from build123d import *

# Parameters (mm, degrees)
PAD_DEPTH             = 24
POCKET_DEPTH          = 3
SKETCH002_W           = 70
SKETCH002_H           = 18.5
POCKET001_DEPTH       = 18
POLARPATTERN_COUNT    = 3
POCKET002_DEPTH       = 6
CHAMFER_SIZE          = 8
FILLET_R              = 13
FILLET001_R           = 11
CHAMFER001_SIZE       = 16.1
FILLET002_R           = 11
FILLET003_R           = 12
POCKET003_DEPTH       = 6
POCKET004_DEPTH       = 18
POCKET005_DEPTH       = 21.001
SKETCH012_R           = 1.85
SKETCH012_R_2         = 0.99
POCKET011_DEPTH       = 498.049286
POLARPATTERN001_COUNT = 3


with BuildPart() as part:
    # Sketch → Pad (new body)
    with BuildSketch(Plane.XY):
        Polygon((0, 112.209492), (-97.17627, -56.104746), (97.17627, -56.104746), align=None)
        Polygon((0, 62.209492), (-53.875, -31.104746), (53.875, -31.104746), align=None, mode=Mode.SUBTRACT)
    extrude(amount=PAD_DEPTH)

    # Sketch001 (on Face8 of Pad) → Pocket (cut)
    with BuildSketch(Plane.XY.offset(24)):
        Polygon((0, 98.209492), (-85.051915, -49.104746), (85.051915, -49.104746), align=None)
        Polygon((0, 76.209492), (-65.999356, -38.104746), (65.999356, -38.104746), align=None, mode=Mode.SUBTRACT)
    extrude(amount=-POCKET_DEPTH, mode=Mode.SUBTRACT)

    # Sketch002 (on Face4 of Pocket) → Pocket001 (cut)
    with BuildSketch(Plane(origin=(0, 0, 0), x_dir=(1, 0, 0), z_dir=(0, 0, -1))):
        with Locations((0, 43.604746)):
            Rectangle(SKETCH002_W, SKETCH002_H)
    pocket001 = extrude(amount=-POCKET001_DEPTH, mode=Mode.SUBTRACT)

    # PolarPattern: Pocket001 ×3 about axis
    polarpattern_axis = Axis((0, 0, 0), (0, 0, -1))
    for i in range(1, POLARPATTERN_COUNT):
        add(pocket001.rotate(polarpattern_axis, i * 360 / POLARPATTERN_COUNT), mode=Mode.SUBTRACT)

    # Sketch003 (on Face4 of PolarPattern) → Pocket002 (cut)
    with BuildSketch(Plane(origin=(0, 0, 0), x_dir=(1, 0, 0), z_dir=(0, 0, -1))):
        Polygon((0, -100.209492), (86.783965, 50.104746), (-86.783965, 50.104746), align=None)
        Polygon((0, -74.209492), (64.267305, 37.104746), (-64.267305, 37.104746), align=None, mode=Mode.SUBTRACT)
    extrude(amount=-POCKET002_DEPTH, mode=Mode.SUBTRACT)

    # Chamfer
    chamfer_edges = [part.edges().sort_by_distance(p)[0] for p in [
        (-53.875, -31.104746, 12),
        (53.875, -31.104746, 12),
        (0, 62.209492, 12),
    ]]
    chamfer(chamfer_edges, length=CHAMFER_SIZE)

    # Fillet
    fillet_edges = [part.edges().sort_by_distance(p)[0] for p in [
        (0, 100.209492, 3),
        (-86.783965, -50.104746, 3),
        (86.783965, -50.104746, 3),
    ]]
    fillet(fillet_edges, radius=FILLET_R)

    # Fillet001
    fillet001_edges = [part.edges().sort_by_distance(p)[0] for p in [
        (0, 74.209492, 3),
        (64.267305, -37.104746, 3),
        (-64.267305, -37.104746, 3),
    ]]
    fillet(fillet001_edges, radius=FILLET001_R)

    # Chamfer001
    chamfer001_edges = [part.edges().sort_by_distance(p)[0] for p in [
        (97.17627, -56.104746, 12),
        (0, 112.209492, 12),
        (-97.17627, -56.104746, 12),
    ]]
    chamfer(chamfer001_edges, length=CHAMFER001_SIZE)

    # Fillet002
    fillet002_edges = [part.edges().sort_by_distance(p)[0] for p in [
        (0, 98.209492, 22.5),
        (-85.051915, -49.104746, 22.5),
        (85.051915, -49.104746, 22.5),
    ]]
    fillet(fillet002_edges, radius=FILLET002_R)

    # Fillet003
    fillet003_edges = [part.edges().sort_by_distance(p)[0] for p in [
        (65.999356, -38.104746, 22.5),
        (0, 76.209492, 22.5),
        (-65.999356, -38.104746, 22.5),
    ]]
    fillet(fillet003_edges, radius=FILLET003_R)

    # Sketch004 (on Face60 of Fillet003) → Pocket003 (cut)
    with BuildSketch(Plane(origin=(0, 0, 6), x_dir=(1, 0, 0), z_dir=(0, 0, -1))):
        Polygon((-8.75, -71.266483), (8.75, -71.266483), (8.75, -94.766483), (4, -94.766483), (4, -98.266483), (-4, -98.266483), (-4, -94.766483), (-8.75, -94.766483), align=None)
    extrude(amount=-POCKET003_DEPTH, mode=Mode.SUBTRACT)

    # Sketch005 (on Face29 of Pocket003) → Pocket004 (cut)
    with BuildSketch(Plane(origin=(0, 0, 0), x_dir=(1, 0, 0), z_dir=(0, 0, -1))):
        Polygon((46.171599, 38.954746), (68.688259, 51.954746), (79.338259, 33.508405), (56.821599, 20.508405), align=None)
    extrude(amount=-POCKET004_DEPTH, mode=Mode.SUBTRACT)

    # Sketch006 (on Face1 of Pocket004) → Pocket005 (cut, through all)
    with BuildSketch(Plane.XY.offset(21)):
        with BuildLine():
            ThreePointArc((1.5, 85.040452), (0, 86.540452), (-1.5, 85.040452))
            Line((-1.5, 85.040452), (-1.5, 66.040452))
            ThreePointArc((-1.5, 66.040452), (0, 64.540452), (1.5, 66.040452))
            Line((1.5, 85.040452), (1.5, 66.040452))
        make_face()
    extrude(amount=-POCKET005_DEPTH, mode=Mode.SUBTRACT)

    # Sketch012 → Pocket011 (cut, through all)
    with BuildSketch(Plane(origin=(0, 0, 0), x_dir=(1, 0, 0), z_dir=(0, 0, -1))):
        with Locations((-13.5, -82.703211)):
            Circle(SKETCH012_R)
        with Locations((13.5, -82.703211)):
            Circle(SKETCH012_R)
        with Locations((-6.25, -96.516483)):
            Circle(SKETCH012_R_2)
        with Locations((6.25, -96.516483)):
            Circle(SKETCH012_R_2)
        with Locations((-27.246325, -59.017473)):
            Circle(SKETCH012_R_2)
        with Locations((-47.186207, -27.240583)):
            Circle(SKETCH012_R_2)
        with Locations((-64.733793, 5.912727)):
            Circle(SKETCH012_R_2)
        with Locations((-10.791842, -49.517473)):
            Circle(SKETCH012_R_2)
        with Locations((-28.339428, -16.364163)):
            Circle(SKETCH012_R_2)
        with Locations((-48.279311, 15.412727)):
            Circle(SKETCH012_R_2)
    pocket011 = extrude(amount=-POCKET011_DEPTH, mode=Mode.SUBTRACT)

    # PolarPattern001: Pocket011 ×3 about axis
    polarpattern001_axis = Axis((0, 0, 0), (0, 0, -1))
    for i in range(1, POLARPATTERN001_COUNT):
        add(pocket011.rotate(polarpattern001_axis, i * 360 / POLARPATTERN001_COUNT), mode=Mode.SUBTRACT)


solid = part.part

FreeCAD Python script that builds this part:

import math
import FreeCAD as App
import Part
import Sketcher
Q = App.Units.Quantity


def edges_at(feature, points):
    """Names of the edges that pass closest to the given points."""
    edges = feature.Shape.Edges
    near = lambda p: min(range(len(edges)), key=lambda i: edges[i].distToShape(Part.Vertex(*p))[0])
    return sorted({f"Edge{near(p) + 1}" for p in points})

doc = App.newDocument("Part")
body = doc.addObject("PartDesign::Body", "Body")

sketch1 = doc.addObject("Sketcher::SketchObject", "Sketch")
body.addObject(sketch1)
sketch1.AttachmentSupport = (doc.XY_Plane, [""])
sketch1.MapMode = "FlatFace"
sketch1.addGeometry([
    Part.LineSegment(App.Vector(0, 112, 0), App.Vector(-97, -56, 0)),
    Part.LineSegment(App.Vector(-97, -56, 0), App.Vector(97, -56, 0)),
    Part.LineSegment(App.Vector(97, -56, 0), App.Vector(0, 112, 0)),
    Part.LineSegment(App.Vector(-54, -31, 0), App.Vector(0, 62, 0)),
    Part.LineSegment(App.Vector(0, 62, 0), App.Vector(54, -31, 0)),
    Part.LineSegment(App.Vector(54, -31, 0), App.Vector(-54, -31, 0)),
], False)
sketch1.addConstraint([
    Sketcher.Constraint("Coincident", 0, 2, 1, 1),
    Sketcher.Constraint("Coincident", 1, 2, 2, 1),
    Sketcher.Constraint("Coincident", 2, 2, 0, 1),
    Sketcher.Constraint("Coincident", 3, 2, 4, 1),
    Sketcher.Constraint("Coincident", 4, 2, 5, 1),
    Sketcher.Constraint("Coincident", 5, 2, 3, 1),
    Sketcher.Constraint("Horizontal", 1),
    Sketcher.Constraint("Horizontal", 5),
    Sketcher.Constraint("PointOnObject", 2, 2, -2),
    Sketcher.Constraint("PointOnObject", 3, 2, -2),
    Sketcher.Constraint("Parallel", 0, 3),
    Sketcher.Constraint("Parallel", 2, 4),
    Sketcher.Constraint("Equal", 0, 2),
    Sketcher.Constraint("Angle", 0, Q("-120 deg")),
    Sketcher.Constraint("DistanceY", 3, 2, 2, 2, 50.0),
    Sketcher.Constraint("DistanceY", 1, 2, 4, 2, 25.0),
    Sketcher.Constraint("DistanceX", 5, 2, 5, 1, 107.75),
    Sketcher.Constraint("DistanceY", -1, 1, 2, 2, 112.209492),
])
pad1 = doc.addObject("PartDesign::Pad", "Pad")
body.addObject(pad1)
pad1.Profile = sketch1
pad1.Length = 24

sketch2 = doc.addObject("Sketcher::SketchObject", "Sketch001")
body.addObject(sketch2)
sketch2.AttachmentSupport = (doc.XY_Plane, [""])
sketch2.MapMode = "FlatFace"
sketch2.AttachmentOffset = App.Placement(App.Vector(0, 0, 24), App.Rotation())
sketch2.addGeometry([
    Part.LineSegment(App.Vector(0, 98, 0), App.Vector(-85, -49, 0)),
    Part.LineSegment(App.Vector(-85, -49, 0), App.Vector(85, -49, 0)),
    Part.LineSegment(App.Vector(85, -49, 0), App.Vector(0, 98, 0)),
    Part.LineSegment(App.Vector(-66, -38, 0), App.Vector(0, 76, 0)),
    Part.LineSegment(App.Vector(0, 76, 0), App.Vector(66, -38, 0)),
    Part.LineSegment(App.Vector(66, -38, 0), App.Vector(-66, -38, 0)),
], False)
sketch2.addConstraint([
    Sketcher.Constraint("Coincident", 0, 2, 1, 1),
    Sketcher.Constraint("Coincident", 1, 2, 2, 1),
    Sketcher.Constraint("Coincident", 2, 2, 0, 1),
    Sketcher.Constraint("Coincident", 3, 2, 4, 1),
    Sketcher.Constraint("Coincident", 4, 2, 5, 1),
    Sketcher.Constraint("Coincident", 5, 2, 3, 1),
    Sketcher.Constraint("Horizontal", 1),
    Sketcher.Constraint("Horizontal", 5),
    Sketcher.Constraint("PointOnObject", 2, 2, -2),
    Sketcher.Constraint("PointOnObject", 3, 2, -2),
    Sketcher.Constraint("Parallel", 0, 3),
    Sketcher.Constraint("Parallel", 2, 4),
    Sketcher.Constraint("Equal", 0, 2),
    Sketcher.Constraint("Angle", 0, Q("-120 deg")),
    Sketcher.Constraint("DistanceY", 3, 2, 2, 2, 22.0),
    Sketcher.Constraint("DistanceY", 1, 2, 4, 2, 11.0),
    Sketcher.Constraint("DistanceX", 1, 1, 1, 2, 170.10383),
    Sketcher.Constraint("DistanceY", -1, 1, 2, 2, 98.209492),
])
pocket1 = doc.addObject("PartDesign::Pocket", "Pocket")
body.addObject(pocket1)
pocket1.Profile = sketch2
pocket1.Length = 3

sketch3 = doc.addObject("Sketcher::SketchObject", "Sketch002")
body.addObject(sketch3)
sketch3.AttachmentSupport = (doc.XY_Plane, [""])
sketch3.MapMode = "FlatFace"
sketch3.addGeometry([
    Part.LineSegment(App.Vector(-35, -53, 0), App.Vector(-35, -34, 0)),
    Part.LineSegment(App.Vector(-35, -34, 0), App.Vector(35, -34, 0)),
    Part.LineSegment(App.Vector(35, -34, 0), App.Vector(35, -53, 0)),
    Part.LineSegment(App.Vector(35, -53, 0), App.Vector(-35, -53, 0)),
], False)
sketch3.addConstraint([
    Sketcher.Constraint("Coincident", 0, 2, 1, 1),
    Sketcher.Constraint("Coincident", 1, 2, 2, 1),
    Sketcher.Constraint("Coincident", 2, 2, 3, 1),
    Sketcher.Constraint("Coincident", 3, 2, 0, 1),
    Sketcher.Constraint("Vertical", 0),
    Sketcher.Constraint("Horizontal", 1),
    Sketcher.Constraint("Vertical", 2),
    Sketcher.Constraint("Horizontal", 3),
    Sketcher.Constraint("DistanceX", 1, 1, 1, 2, 70.0),
    Sketcher.Constraint("DistanceY", 0, 1, 0, 2, 18.5),
    Sketcher.Constraint("DistanceX", 0, 2, -1, 1, 35.0),
    Sketcher.Constraint("DistanceY", 0, 2, -1, 1, 34.354746),
])
pocket2 = doc.addObject("PartDesign::Pocket", "Pocket001")
body.addObject(pocket2)
pocket2.Profile = sketch3
pocket2.Length = 18
pocket2.Reversed = True
doc.recompute()

polarpattern = doc.addObject("PartDesign::PolarPattern", "PolarPattern")
body.addObject(polarpattern)
polarpattern.Originals = [pocket2]
polarpattern.Axis = (doc.Z_Axis, [""])
polarpattern.Angle = 360
polarpattern.Occurrences = 3
body.Tip = polarpattern

sketch4 = doc.addObject("Sketcher::SketchObject", "Sketch003")
body.addObject(sketch4)
sketch4.AttachmentSupport = (doc.XY_Plane, [""])
sketch4.MapMode = "FlatFace"
sketch4.addGeometry([
    Part.LineSegment(App.Vector(0, 100, 0), App.Vector(87, -50, 0)),
    Part.LineSegment(App.Vector(87, -50, 0), App.Vector(-87, -50, 0)),
    Part.LineSegment(App.Vector(-87, -50, 0), App.Vector(0, 100, 0)),
    Part.LineSegment(App.Vector(64, -37, 0), App.Vector(0, 74, 0)),
    Part.LineSegment(App.Vector(0, 74, 0), App.Vector(-64, -37, 0)),
    Part.LineSegment(App.Vector(-64, -37, 0), App.Vector(64, -37, 0)),
], False)
sketch4.addConstraint([
    Sketcher.Constraint("Coincident", 0, 2, 1, 1),
    Sketcher.Constraint("Coincident", 1, 2, 2, 1),
    Sketcher.Constraint("Coincident", 2, 2, 0, 1),
    Sketcher.Constraint("Coincident", 3, 2, 4, 1),
    Sketcher.Constraint("Coincident", 4, 2, 5, 1),
    Sketcher.Constraint("Coincident", 5, 2, 3, 1),
    Sketcher.Constraint("Horizontal", 1),
    Sketcher.Constraint("Horizontal", 5),
    Sketcher.Constraint("PointOnObject", 2, 2, -2),
    Sketcher.Constraint("PointOnObject", 3, 2, -2),
    Sketcher.Constraint("Parallel", 0, 3),
    Sketcher.Constraint("Parallel", 2, 4),
    Sketcher.Constraint("Equal", 0, 2),
    Sketcher.Constraint("Angle", 0, Q("-60 deg")),
    Sketcher.Constraint("DistanceY", 3, 2, 2, 2, 26.0),
    Sketcher.Constraint("DistanceY", 1, 2, 4, 2, 13.0),
    Sketcher.Constraint("DistanceX", 1, 2, 1, 1, 173.56793),
    Sketcher.Constraint("DistanceY", -1, 1, 2, 2, 100.209492),
])
pocket3 = doc.addObject("PartDesign::Pocket", "Pocket002")
body.addObject(pocket3)
pocket3.Profile = sketch4
pocket3.Length = 6
pocket3.Reversed = True
doc.recompute()

chamfer = doc.addObject("PartDesign::Chamfer", "Chamfer")
body.addObject(chamfer)
chamfer.Base = (pocket3, edges_at(pocket3, [(-53.875, -31.105, 12), (53.875, -31.105, 12), (0, 62.209, 12)]))
chamfer.Size = 8
doc.recompute()

fillet = doc.addObject("PartDesign::Fillet", "Fillet")
body.addObject(fillet)
fillet.Base = (chamfer, edges_at(chamfer, [(0, 100.209, 3), (-86.784, -50.105, 3), (86.784, -50.105, 3)]))
fillet.Radius = 13
doc.recompute()

fillet2 = doc.addObject("PartDesign::Fillet", "Fillet001")
body.addObject(fillet2)
fillet2.Base = (fillet, edges_at(fillet, [(0, 74.209, 3), (64.267, -37.105, 3), (-64.267, -37.105, 3)]))
fillet2.Radius = 11
doc.recompute()

chamfer2 = doc.addObject("PartDesign::Chamfer", "Chamfer001")
body.addObject(chamfer2)
chamfer2.Base = (fillet2, edges_at(fillet2, [(97.176, -56.105, 12), (0, 112.209, 12), (-97.176, -56.105, 12)]))
chamfer2.Size = 16.1
doc.recompute()

fillet3 = doc.addObject("PartDesign::Fillet", "Fillet002")
body.addObject(fillet3)
fillet3.Base = (chamfer2, edges_at(chamfer2, [(0, 98.209, 22.5), (-85.052, -49.105, 22.5), (85.052, -49.105, 22.5)]))
fillet3.Radius = 11
doc.recompute()

fillet4 = doc.addObject("PartDesign::Fillet", "Fillet003")
body.addObject(fillet4)
fillet4.Base = (fillet3, edges_at(fillet3, [(65.999, -38.105, 22.5), (0, 76.209, 22.5), (-65.999, -38.105, 22.5)]))
fillet4.Radius = 12

sketch5 = doc.addObject("Sketcher::SketchObject", "Sketch004")
body.addObject(sketch5)
sketch5.AttachmentSupport = (doc.XY_Plane, [""])
sketch5.MapMode = "FlatFace"
sketch5.AttachmentOffset = App.Placement(App.Vector(0, 0, 6), App.Rotation())
sketch5.addGeometry([
    Part.LineSegment(App.Vector(8.8, 71.3, 0), App.Vector(-8.8, 71.3, 0)),
    Part.LineSegment(App.Vector(-8.8, 71.3, 0), App.Vector(-8.8, 94.8, 0)),
    Part.LineSegment(App.Vector(-8.8, 94.8, 0), App.Vector(-4, 94.8, 0)),
    Part.LineSegment(App.Vector(-4, 94.8, 0), App.Vector(-4, 98.3, 0)),
    Part.LineSegment(App.Vector(-4, 98.3, 0), App.Vector(4, 98.3, 0)),
    Part.LineSegment(App.Vector(4, 98.3, 0), App.Vector(4, 94.8, 0)),
    Part.LineSegment(App.Vector(4, 94.8, 0), App.Vector(8.8, 94.8, 0)),
    Part.LineSegment(App.Vector(8.8, 94.8, 0), App.Vector(8.8, 71.3, 0)),
], False)
sketch5.addConstraint([
    Sketcher.Constraint("Coincident", 0, 2, 1, 1),
    Sketcher.Constraint("Coincident", 1, 2, 2, 1),
    Sketcher.Constraint("Coincident", 2, 2, 3, 1),
    Sketcher.Constraint("Coincident", 3, 2, 4, 1),
    Sketcher.Constraint("Coincident", 4, 2, 5, 1),
    Sketcher.Constraint("Coincident", 5, 2, 6, 1),
    Sketcher.Constraint("Coincident", 6, 2, 7, 1),
    Sketcher.Constraint("Coincident", 7, 2, 0, 1),
    Sketcher.Constraint("Horizontal", 0),
    Sketcher.Constraint("Vertical", 1),
    Sketcher.Constraint("Horizontal", 2),
    Sketcher.Constraint("Vertical", 3),
    Sketcher.Constraint("Horizontal", 4),
    Sketcher.Constraint("Vertical", 5),
    Sketcher.Constraint("Horizontal", 6),
    Sketcher.Constraint("Vertical", 7),
    Sketcher.Constraint("Symmetric", 2, 2, 5, 2, -2),
    Sketcher.Constraint("Equal", 2, 6),
    Sketcher.Constraint("DistanceX", 4, 1, 4, 2, 8.0),
    Sketcher.Constraint("DistanceX", 0, 2, 0, 1, 17.5),
    Sketcher.Constraint("DistanceY", 1, 1, 1, 2, 23.5),
    Sketcher.Constraint("DistanceY", 3, 1, 3, 2, 3.5),
    Sketcher.Constraint("DistanceY", -1, 1, 0, 2, 71.266483),
])
pocket4 = doc.addObject("PartDesign::Pocket", "Pocket003")
body.addObject(pocket4)
pocket4.Profile = sketch5
pocket4.Length = 6
pocket4.Reversed = True

sketch6 = doc.addObject("Sketcher::SketchObject", "Sketch005")
body.addObject(sketch6)
sketch6.AttachmentSupport = (doc.XY_Plane, [""])
sketch6.MapMode = "FlatFace"
sketch6.addGeometry([
    Part.LineSegment(App.Vector(69, -52, 0), App.Vector(46, -39, 0)),
    Part.LineSegment(App.Vector(46, -39, 0), App.Vector(57, -21, 0)),
    Part.LineSegment(App.Vector(57, -21, 0), App.Vector(79, -34, 0)),
    Part.LineSegment(App.Vector(79, -34, 0), App.Vector(69, -52, 0)),
], False)
sketch6.addConstraint([
    Sketcher.Constraint("Coincident", 0, 2, 1, 1),
    Sketcher.Constraint("Coincident", 1, 2, 2, 1),
    Sketcher.Constraint("Coincident", 2, 2, 3, 1),
    Sketcher.Constraint("Coincident", 3, 2, 0, 1),
    Sketcher.Constraint("Perpendicular", 0, 1),
    Sketcher.Constraint("Perpendicular", 1, 2),
    Sketcher.Constraint("Perpendicular", 2, 3),
    Sketcher.Constraint("Angle", 0, Q("149.999999 deg")),
    Sketcher.Constraint("Distance", 0, 26.0),
    Sketcher.Constraint("Distance", 1, 21.3),
    Sketcher.Constraint("DistanceX", -1, 1, 0, 2, 46.171599),
    Sketcher.Constraint("DistanceY", 0, 2, -1, 1, 38.954746),
])
pocket5 = doc.addObject("PartDesign::Pocket", "Pocket004")
body.addObject(pocket5)
pocket5.Profile = sketch6
pocket5.Length = 18
pocket5.Reversed = True

sketch7 = doc.addObject("Sketcher::SketchObject", "Sketch006")
body.addObject(sketch7)
sketch7.AttachmentSupport = (doc.XY_Plane, [""])
sketch7.MapMode = "FlatFace"
sketch7.AttachmentOffset = App.Placement(App.Vector(0, 0, 21), App.Rotation())
sketch7.addGeometry([
    Part.ArcOfCircle(Part.Circle(App.Vector(0, 85, 0), App.Vector(0, 0, 1), 1.5), math.radians(0), math.radians(180)),
    Part.LineSegment(App.Vector(-1.5, 85, 0), App.Vector(-1.5, 66, 0)),
    Part.ArcOfCircle(Part.Circle(App.Vector(0, 66, 0), App.Vector(0, 0, 1), 1.5), math.radians(180), math.radians(360)),
    Part.LineSegment(App.Vector(1.5, 66, 0), App.Vector(1.5, 85, 0)),
], False)
sketch7.addConstraint([
    Sketcher.Constraint("Tangent", 0, 2, 1, 1),
    Sketcher.Constraint("Tangent", 1, 2, 2, 1),
    Sketcher.Constraint("Tangent", 2, 2, 3, 1),
    Sketcher.Constraint("Tangent", 3, 2, 0, 1),
    Sketcher.Constraint("Vertical", 1),
    Sketcher.Constraint("Vertical", 3),
    Sketcher.Constraint("PointOnObject", 0, 3, -2),
    Sketcher.Constraint("Radius", 0, 1.5),
    Sketcher.Constraint("DistanceY", 1, 2, 1, 1, 19.0),
    Sketcher.Constraint("DistanceY", -1, 1, 0, 3, 85.040452),
])
pocket6 = doc.addObject("PartDesign::Pocket", "Pocket005")
body.addObject(pocket6)
pocket6.Profile = sketch7
pocket6.Type = "ThroughAll"

sketch8 = doc.addObject("Sketcher::SketchObject", "Sketch007")
body.addObject(sketch8)
sketch8.AttachmentSupport = (doc.XY_Plane, [""])
sketch8.MapMode = "FlatFace"
sketch8.addGeometry([
    Part.Circle(App.Vector(-13.5, 82.7, 0), App.Vector(0, 0, 1), 1.9),
    Part.Circle(App.Vector(13.5, 82.7, 0), App.Vector(0, 0, 1), 1.9),
    Part.Circle(App.Vector(-6.2, 96.5, 0), App.Vector(0, 0, 1), 1),
    Part.Circle(App.Vector(6.2, 96.5, 0), App.Vector(0, 0, 1), 1),
    Part.Circle(App.Vector(-27.2, 59, 0), App.Vector(0, 0, 1), 1),
    Part.Circle(App.Vector(-47.2, 27.2, 0), App.Vector(0, 0, 1), 1),
    Part.Circle(App.Vector(-64.7, -5.9, 0), App.Vector(0, 0, 1), 1),
    Part.Circle(App.Vector(-10.8, 49.5, 0), App.Vector(0, 0, 1), 1),
    Part.Circle(App.Vector(-28.3, 16.4, 0), App.Vector(0, 0, 1), 1),
    Part.Circle(App.Vector(-48.3, -15.4, 0), App.Vector(0, 0, 1), 1),
], False)
sketch8.addConstraint([
    Sketcher.Constraint("Equal", 0, 1),
    Sketcher.Constraint("Equal", 2, 3),
    Sketcher.Constraint("Equal", 3, 4),
    Sketcher.Constraint("Equal", 4, 5),
    Sketcher.Constraint("Equal", 5, 6),
    Sketcher.Constraint("Equal", 6, 7),
    Sketcher.Constraint("Equal", 7, 8),
    Sketcher.Constraint("Equal", 8, 9),
    Sketcher.Constraint("Symmetric", 0, 3, 1, 3, -2),
    Sketcher.Constraint("Symmetric", 2, 3, 3, 3, -2),
    Sketcher.Constraint("Diameter", 0, 3.7),
    Sketcher.Constraint("Diameter", 2, 1.98),
    Sketcher.Constraint("DistanceX", 0, 3, 1, 3, 27.0),
    Sketcher.Constraint("DistanceX", 2, 3, 3, 3, 12.5),
    Sketcher.Constraint("DistanceY", 7, 3, 4, 3, 9.5),
    Sketcher.Constraint("DistanceY", 9, 3, 6, 3, 9.5),
    Sketcher.Constraint("DistanceY", 5, 3, 2, 3, 69.2759),
    Sketcher.Constraint("DistanceY", 6, 3, 4, 3, 64.9302),
    Sketcher.Constraint("DistanceY", -1, 1, 0, 3, 82.703211),
    Sketcher.Constraint("DistanceX", 8, 3, -1, 1, 28.339428),
    Sketcher.Constraint("DistanceX", 9, 3, -1, 1, 48.279311),
    Sketcher.Constraint("DistanceY", 0, 3, 2, 3, 13.813272),
    Sketcher.Constraint("DistanceY", 4, 3, 2, 3, 37.49901),
    Sketcher.Constraint("DistanceX", 6, 3, 4, 3, 37.487468),
    Sketcher.Constraint("DistanceX", 5, 3, 8, 3, 18.846779),
    Sketcher.Constraint("DistanceY", 8, 3, 5, 3, 10.87642),
    Sketcher.Constraint("DistanceX", 9, 3, 7, 3, 37.487469),
    Sketcher.Constraint("DistanceX", 4, 3, -1, 1, 27.246325),
])
pocket7 = doc.addObject("PartDesign::Pocket", "Pocket006")
body.addObject(pocket7)
pocket7.Profile = sketch8
pocket7.Type = "ThroughAll"
pocket7.Reversed = True
doc.recompute()

polarpattern2 = doc.addObject("PartDesign::PolarPattern", "PolarPattern001")
body.addObject(polarpattern2)
polarpattern2.Originals = [pocket7]
polarpattern2.Axis = (doc.Z_Axis, [""])
polarpattern2.Angle = 360
polarpattern2.Occurrences = 3
body.Tip = polarpattern2

doc.recompute()
